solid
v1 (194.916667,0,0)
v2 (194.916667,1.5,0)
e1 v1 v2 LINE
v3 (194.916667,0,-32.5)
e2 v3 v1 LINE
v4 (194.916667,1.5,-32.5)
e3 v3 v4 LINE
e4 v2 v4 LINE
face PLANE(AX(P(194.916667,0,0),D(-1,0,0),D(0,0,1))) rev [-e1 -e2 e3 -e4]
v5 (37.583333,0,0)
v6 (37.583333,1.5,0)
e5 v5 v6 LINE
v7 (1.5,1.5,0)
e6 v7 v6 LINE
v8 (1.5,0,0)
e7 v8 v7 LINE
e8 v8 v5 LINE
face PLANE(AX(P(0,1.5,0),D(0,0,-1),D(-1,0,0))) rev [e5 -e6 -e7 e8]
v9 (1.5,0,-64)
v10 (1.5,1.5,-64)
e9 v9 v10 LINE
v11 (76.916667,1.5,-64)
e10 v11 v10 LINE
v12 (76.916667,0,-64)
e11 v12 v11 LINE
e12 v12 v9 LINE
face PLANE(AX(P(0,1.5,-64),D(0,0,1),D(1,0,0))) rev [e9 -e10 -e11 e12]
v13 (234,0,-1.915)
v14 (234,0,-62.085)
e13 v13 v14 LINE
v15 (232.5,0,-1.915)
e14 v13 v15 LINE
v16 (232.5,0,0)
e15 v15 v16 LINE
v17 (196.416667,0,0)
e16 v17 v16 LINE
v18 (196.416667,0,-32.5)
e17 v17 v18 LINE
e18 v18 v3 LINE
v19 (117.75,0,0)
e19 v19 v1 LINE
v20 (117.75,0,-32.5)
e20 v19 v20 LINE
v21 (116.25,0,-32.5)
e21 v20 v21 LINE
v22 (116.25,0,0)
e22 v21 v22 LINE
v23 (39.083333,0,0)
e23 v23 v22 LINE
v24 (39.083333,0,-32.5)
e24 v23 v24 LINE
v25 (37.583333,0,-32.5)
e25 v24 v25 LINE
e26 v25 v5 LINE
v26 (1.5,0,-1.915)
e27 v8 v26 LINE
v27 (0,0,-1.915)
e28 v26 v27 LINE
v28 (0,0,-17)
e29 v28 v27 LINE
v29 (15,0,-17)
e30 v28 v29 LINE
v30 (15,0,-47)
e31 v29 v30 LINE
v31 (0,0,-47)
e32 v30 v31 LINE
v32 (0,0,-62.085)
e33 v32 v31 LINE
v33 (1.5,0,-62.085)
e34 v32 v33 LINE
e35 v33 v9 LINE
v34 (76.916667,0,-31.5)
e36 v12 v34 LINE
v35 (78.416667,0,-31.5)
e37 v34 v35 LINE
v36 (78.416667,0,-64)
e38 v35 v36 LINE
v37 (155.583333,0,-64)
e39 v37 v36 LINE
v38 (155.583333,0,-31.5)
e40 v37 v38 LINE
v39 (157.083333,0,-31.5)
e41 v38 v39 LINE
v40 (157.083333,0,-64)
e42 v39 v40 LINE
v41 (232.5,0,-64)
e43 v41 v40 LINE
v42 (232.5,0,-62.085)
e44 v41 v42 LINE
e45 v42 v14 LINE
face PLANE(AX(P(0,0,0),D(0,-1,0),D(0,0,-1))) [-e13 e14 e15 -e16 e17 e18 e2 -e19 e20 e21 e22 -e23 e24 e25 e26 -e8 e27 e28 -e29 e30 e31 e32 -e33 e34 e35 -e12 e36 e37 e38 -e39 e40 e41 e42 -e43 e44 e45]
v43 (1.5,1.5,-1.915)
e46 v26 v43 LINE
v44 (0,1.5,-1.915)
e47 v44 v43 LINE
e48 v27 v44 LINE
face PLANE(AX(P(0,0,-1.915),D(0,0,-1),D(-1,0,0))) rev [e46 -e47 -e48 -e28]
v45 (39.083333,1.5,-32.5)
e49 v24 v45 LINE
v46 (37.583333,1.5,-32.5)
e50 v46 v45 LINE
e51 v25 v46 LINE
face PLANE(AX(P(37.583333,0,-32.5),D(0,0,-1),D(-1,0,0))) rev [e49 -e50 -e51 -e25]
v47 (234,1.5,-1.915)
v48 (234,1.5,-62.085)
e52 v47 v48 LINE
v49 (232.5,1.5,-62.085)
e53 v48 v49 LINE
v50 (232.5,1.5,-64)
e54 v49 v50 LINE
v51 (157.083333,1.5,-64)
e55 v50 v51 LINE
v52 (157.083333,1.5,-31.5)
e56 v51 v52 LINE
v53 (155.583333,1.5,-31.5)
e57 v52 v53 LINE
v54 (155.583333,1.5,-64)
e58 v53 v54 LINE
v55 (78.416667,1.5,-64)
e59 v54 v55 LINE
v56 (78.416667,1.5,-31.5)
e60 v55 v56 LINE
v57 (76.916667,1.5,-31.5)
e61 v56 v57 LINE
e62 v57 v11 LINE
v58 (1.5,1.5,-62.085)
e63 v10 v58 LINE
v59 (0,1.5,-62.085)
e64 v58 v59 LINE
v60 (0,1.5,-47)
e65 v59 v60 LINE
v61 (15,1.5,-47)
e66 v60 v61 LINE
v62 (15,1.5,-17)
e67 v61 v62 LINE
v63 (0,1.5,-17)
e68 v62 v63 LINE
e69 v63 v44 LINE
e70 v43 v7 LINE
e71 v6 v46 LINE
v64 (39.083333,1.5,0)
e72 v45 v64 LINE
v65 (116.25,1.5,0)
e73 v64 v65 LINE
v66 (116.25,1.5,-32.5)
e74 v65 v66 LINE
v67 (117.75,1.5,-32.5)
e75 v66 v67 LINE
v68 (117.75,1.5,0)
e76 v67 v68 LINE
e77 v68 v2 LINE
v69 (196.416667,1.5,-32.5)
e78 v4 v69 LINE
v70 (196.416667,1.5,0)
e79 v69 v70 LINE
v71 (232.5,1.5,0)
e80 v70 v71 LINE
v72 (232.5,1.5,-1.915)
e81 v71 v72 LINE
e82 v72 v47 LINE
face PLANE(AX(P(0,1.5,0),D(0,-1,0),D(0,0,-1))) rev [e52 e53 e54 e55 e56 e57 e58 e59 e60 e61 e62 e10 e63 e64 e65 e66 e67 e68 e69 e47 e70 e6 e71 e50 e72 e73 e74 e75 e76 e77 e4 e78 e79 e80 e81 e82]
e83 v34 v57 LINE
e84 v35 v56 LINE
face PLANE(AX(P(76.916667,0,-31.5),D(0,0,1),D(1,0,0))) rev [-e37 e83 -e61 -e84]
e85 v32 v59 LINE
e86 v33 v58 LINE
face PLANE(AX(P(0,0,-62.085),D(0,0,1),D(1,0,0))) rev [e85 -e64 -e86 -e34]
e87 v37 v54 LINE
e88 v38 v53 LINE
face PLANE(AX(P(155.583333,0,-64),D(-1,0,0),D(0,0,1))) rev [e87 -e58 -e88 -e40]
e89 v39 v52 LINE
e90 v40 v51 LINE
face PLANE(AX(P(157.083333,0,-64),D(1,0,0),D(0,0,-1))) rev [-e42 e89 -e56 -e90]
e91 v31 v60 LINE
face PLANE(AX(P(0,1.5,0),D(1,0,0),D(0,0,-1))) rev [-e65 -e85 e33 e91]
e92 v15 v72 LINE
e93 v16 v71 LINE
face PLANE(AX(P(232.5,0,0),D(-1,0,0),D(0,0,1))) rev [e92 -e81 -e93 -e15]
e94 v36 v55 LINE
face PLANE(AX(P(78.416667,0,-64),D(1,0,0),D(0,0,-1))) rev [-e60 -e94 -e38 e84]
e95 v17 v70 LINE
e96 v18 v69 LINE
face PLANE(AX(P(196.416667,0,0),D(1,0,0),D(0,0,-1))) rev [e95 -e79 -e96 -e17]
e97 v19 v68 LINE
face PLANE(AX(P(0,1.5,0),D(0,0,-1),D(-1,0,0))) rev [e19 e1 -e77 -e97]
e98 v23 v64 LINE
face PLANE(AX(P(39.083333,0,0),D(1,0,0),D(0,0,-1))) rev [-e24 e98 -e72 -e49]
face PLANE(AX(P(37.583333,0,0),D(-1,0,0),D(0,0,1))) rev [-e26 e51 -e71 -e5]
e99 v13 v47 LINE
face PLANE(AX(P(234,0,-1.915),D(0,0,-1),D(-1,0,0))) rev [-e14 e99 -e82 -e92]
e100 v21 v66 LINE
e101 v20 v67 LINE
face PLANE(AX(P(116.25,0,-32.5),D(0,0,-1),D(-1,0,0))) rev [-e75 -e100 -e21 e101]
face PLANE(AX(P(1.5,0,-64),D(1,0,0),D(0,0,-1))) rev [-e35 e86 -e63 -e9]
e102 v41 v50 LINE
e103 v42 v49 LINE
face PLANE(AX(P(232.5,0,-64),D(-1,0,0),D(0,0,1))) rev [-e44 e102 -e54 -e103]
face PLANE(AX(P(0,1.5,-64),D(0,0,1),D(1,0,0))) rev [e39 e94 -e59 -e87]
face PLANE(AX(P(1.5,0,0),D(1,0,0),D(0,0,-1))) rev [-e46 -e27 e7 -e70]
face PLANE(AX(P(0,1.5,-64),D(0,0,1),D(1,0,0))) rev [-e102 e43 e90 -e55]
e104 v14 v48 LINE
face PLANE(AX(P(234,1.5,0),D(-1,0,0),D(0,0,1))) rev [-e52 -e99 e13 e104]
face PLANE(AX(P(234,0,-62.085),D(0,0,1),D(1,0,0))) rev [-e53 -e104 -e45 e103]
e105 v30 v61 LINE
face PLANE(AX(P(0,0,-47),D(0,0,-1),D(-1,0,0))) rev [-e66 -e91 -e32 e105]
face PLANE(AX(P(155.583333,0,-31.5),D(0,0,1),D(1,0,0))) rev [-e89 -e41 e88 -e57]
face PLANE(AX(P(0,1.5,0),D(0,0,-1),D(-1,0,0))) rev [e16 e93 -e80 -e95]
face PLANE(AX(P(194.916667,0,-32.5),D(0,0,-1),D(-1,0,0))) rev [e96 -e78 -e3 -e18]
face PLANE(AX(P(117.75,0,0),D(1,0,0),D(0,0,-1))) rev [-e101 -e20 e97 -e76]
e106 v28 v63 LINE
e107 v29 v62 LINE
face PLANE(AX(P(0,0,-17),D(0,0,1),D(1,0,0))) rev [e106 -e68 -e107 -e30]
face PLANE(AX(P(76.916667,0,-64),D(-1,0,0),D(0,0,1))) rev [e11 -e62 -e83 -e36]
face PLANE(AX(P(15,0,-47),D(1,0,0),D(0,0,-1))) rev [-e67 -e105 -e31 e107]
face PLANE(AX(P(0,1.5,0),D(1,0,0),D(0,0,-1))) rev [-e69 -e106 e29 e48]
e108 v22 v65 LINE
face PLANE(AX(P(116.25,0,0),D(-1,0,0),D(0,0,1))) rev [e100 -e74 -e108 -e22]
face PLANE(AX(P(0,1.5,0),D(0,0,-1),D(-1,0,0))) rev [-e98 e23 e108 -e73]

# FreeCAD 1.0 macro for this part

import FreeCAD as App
import Part
import Sketcher

V = App.Vector
Q = App.Units.Quantity

doc = App.newDocument("Part")
body = doc.addObject("PartDesign::Body", "Body")

# Sketch on XZ plane
sketch1 = body.newObject("Sketcher::SketchObject", "Sketch")
sketch1.AttachmentSupport = (doc.getObject("XZ_Plane"), [""])
sketch1.MapMode = "FlatFace"
sketch1.addGeometry([
    Part.LineSegment(V(0, -64, 0), V(0, 0, 0)),
    Part.LineSegment(V(0, 0, 0), V(234, 0, 0)),
    Part.LineSegment(V(234, 0, 0), V(234, -64, 0)),
    Part.LineSegment(V(234, -64, 0), V(0, -64, 0)),
], False)
sketch1.addConstraint([
    Sketcher.Constraint("Coincident", 0, 2, 1, 1),
    Sketcher.Constraint("Coincident", 1, 2, 2, 1),
    Sketcher.Constraint("Coincident", 2, 2, 3, 1),
    Sketcher.Constraint("Coincident", 3, 2, 0, 1),
    Sketcher.Constraint("Vertical", 0),
    Sketcher.Constraint("Horizontal", 1),
    Sketcher.Constraint("Vertical", 2),
    Sketcher.Constraint("Horizontal", 3),
    Sketcher.Constraint("Coincident", 0, 2, -1, 1),
    Sketcher.Constraint("DistanceX", 1, 1, 1, 2, Q("234 mm")),
    Sketcher.Constraint("DistanceY", 0, 1, 0, 2, Q("64 mm")),
])
pad1 = body.newObject("PartDesign::Pad", "Pad")
pad1.Profile = sketch1
pad1.Length = 1.5
pad1.Reversed = True

# Sketch on XZ plane
sketch2 = body.newObject("Sketcher::SketchObject", "Sketch001")
sketch2.AttachmentSupport = (doc.getObject("XZ_Plane"), [""])
sketch2.MapMode = "FlatFace"
sketch2.AttachmentOffset = App.Placement(V(0, 0, -1.5), App.Rotation())
sketch2.addGeometry([
    Part.LineSegment(V(37.6, -32.5, 0), V(37.6, 0, 0)),  # 0
    Part.LineSegment(V(37.6, 0, 0), V(39.1, 0, 0)),  # 1
    Part.LineSegment(V(39.1, 0, 0), V(39.1, -32.5, 0)),  # 2
    Part.LineSegment(V(39.1, -32.5, 0), V(37.6, -32.5, 0)),  # 3
    Part.LineSegment(V(76.9, -64, 0), V(76.9, -31.5, 0)),  # 4
    Part.LineSegment(V(76.9, -31.5, 0), V(78.4, -31.5, 0)),  # 5
    Part.LineSegment(V(78.4, -31.5, 0), V(78.4, -64, 0)),  # 6
    Part.LineSegment(V(78.4, -64, 0), V(76.9, -64, 0)),  # 7
    Part.LineSegment(V(116.2, -32.5, 0), V(116.2, 0, 0)),  # 8
    Part.LineSegment(V(116.2, 0, 0), V(117.8, 0, 0)),  # 9
    Part.LineSegment(V(117.8, 0, 0), V(117.8, -32.5, 0)),  # 10
    Part.LineSegment(V(117.8, -32.5, 0), V(116.2, -32.5, 0)),  # 11
    Part.LineSegment(V(194.9, -32.5, 0), V(194.9, 0, 0)),  # 12
    Part.LineSegment(V(194.9, 0, 0), V(196.4, 0, 0)),  # 13
    Part.LineSegment(V(196.4, 0, 0), V(196.4, -32.5, 0)),  # 14
    Part.LineSegment(V(196.4, -32.5, 0), V(194.9, -32.5, 0)),  # 15
    Part.LineSegment(V(155.6, -64, 0), V(155.6, -31.5, 0)),  # 16
    Part.LineSegment(V(155.6, -31.5, 0), V(157.1, -31.5, 0)),  # 17
    Part.LineSegment(V(157.1, -31.5, 0), V(157.1, -64, 0)),  # 18
    Part.LineSegment(V(157.1, -64, 0), V(155.6, -64, 0)),  # 19
    Part.LineSegment(V(0, -1.9, 0), V(0, 0, 0)),  # 20
    Part.LineSegment(V(0, 0, 0), V(1.5, 0, 0)),  # 21
    Part.LineSegment(V(1.5, 0, 0), V(1.5, -1.9, 0)),  # 22
    Part.LineSegment(V(1.5, -1.9, 0), V(0, -1.9, 0)),  # 23
    Part.LineSegment(V(0, -64, 0), V(0, -62.1, 0)),  # 24
    Part.LineSegment(V(0, -62.1, 0), V(1.5, -62.1, 0)),  # 25
    Part.LineSegment(V(1.5, -62.1, 0), V(1.5, -64, 0)),  # 26
    Part.LineSegment(V(1.5, -64, 0), V(0, -64, 0)),  # 27
    Part.LineSegment(V(232.5, -64, 0), V(232.5, -62.1, 0)),  # 28
    Part.LineSegment(V(232.5, -62.1, 0), V(234, -62.1, 0)),  # 29
    Part.LineSegment(V(234, -62.1, 0), V(234, -64, 0)),  # 30
    Part.LineSegment(V(234, -64, 0), V(232.5, -64, 0)),  # 31
    Part.LineSegment(V(232.5, -1.9, 0), V(232.5, 0, 0)),  # 32
    Part.LineSegment(V(232.5, 0, 0), V(234, 0, 0)),  # 33
    Part.LineSegment(V(234, 0, 0), V(234, -1.9, 0)),  # 34
    Part.LineSegment(V(234, -1.9, 0), V(232.5, -1.9, 0)),  # 35
    Part.LineSegment(V(0, -47, 0), V(0, -17, 0)),  # 36
    Part.LineSegment(V(0, -17, 0), V(15, -17, 0)),  # 37
    Part.LineSegment(V(15, -17, 0), V(15, -47, 0)),  # 38
    Part.LineSegment(V(15, -47, 0), V(0, -47, 0)),  # 39
], False)
sketch2.addConstraint([
    Sketcher.Constraint("Coincident", 0, 2, 1, 1),
    Sketcher.Constraint("Coincident", 1, 2, 2, 1),
    Sketcher.Constraint("Coincident", 2, 2, 3, 1),
    Sketcher.Constraint("Coincident", 3, 2, 0, 1),
    Sketcher.Constraint("Coincident", 4, 2, 5, 1),
    Sketcher.Constraint("Coincident", 5, 2, 6, 1),
    Sketcher.Constraint("Coincident", 6, 2, 7, 1),
    Sketcher.Constraint("Coincident", 7, 2, 4, 1),
    Sketcher.Constraint("Coincident", 8, 2, 9, 1),
    Sketcher.Constraint("Coincident", 9, 2, 10, 1),
    Sketcher.Constraint("Coincident", 10, 2, 11, 1),
    Sketcher.Constraint("Coincident", 11, 2, 8, 1),
    Sketcher.Constraint("Coincident", 12, 2, 13, 1),
    Sketcher.Constraint("Coincident", 13, 2, 14, 1),
    Sketcher.Constraint("Coincident", 14, 2, 15, 1),
    Sketcher.Constraint("Coincident", 15, 2, 12, 1),
    Sketcher.Constraint("Coincident", 16, 2, 17, 1),
    Sketcher.Constraint("Coincident", 17, 2, 18, 1),
    Sketcher.Constraint("Coincident", 18, 2, 19, 1),
    Sketcher.Constraint("Coincident", 19, 2, 16, 1),
    Sketcher.Constraint("Coincident", 20, 2, 21, 1),
    Sketcher.Constraint("Coincident", 21, 2, 22, 1),
    Sketcher.Constraint("Coincident", 22, 2, 23, 1),
    Sketcher.Constraint("Coincident", 23, 2, 20, 1),
    Sketcher.Constraint("Coincident", 24, 2, 25, 1),
    Sketcher.Constraint("Coincident", 25, 2, 26, 1),
    Sketcher.Constraint("Coincident", 26, 2, 27, 1),
    Sketcher.Constraint("Coincident", 27, 2, 24, 1),
    Sketcher.Constraint("Coincident", 28, 2, 29, 1),
    Sketcher.Constraint("Coincident", 29, 2, 30, 1),
    Sketcher.Constraint("Coincident", 30, 2, 31, 1),
    Sketcher.Constraint("Coincident", 31, 2, 28, 1),
    Sketcher.Constraint("Coincident", 32, 2, 33, 1),
    Sketcher.Constraint("Coincident", 33, 2, 34, 1),
    Sketcher.Constraint("Coincident", 34, 2, 35, 1),
    Sketcher.Constraint("Coincident", 35, 2, 32, 1),
    Sketcher.Constraint("Coincident", 36, 2, 37, 1),
    Sketcher.Constraint("Coincident", 37, 2, 38, 1),
    Sketcher.Constraint("Coincident", 38, 2, 39, 1),
    Sketcher.Constraint("Coincident", 39, 2, 36, 1),
    Sketcher.Constraint("Vertical", 0),
    Sketcher.Constraint("Horizontal", 1),
    Sketcher.Constraint("Vertical", 2),
    Sketcher.Constraint("Horizontal", 3),
    Sketcher.Constraint("Vertical", 4),
    Sketcher.Constraint("Horizontal", 5),
    Sketcher.Constraint("Vertical", 6),
    Sketcher.Constraint("Horizontal", 7),
    Sketcher.Constraint("Vertical", 8),
    Sketcher.Constraint("Horizontal", 9),
    Sketcher.Constraint("Vertical", 10),
    Sketcher.Constraint("Horizontal", 11),
    Sketcher.Constraint("Vertical", 12),
    Sketcher.Constraint("Horizontal", 13),
    Sketcher.Constraint("Vertical", 14),
    Sketcher.Constraint("Horizontal", 15),
    Sketcher.Constraint("Vertical", 16),
    Sketcher.Constraint("Horizontal", 17),
    Sketcher.Constraint("Vertical", 18),
    Sketcher.Constraint("Horizontal", 19),
    Sketcher.Constraint("Vertical", 20),
    Sketcher.Constraint("Horizontal", 21),
    Sketcher.Constraint("Vertical", 22),
    Sketcher.Constraint("Horizontal", 23),
    Sketcher.Constraint("Vertical", 24),
    Sketcher.Constraint("Horizontal", 25),
    Sketcher.Constraint("Vertical", 26),
    Sketcher.Constraint("Horizontal", 27),
    Sketcher.Constraint("Vertical", 28),
    Sketcher.Constraint("Horizontal", 29),
    Sketcher.Constraint("Vertical", 30),
    Sketcher.Constraint("Horizontal", 31),
    Sketcher.Constraint("Vertical", 32),
    Sketcher.Constraint("Horizontal", 33),
    Sketcher.Constraint("Vertical", 34),
    Sketcher.Constraint("Horizontal", 35),
    Sketcher.Constraint("Vertical", 36),
    Sketcher.Constraint("Horizontal", 37),
    Sketcher.Constraint("Vertical", 38),
    Sketcher.Constraint("Horizontal", 39),
    Sketcher.Constraint("Coincident", 20, 2, -1, 1),
    Sketcher.Constraint("PointOnObject", 0, 2, -1),
    Sketcher.Constraint("PointOnObject", 8, 2, -1),
    Sketcher.Constraint("PointOnObject", 12, 2, -1),
    Sketcher.Constraint("PointOnObject", 24, 2, -2),
    Sketcher.Constraint("PointOnObject", 32, 2, -1),
    Sketcher.Constraint("PointOnObject", 36, 2, -2),
    Sketcher.Constraint("Horizontal", 3, 2, 10, 2),
    Sketcher.Constraint("Horizontal", 11, 2, 14, 2),
    Sketcher.Constraint("Horizontal", 5, 2, 16, 2),
    Sketcher.Constraint("Horizontal", 7, 2, 18, 2),
    Sketcher.Constraint("Horizontal", 19, 2, 26, 2),
    Sketcher.Constraint("Horizontal", 25, 2, 28, 2),
    Sketcher.Constraint("Horizontal", 27, 2, 30, 2),
    Sketcher.Constraint("Horizontal", 23, 2, 34, 2),
    Sketcher.Constraint("Vertical", 22, 2, 25, 2),
    Sketcher.Constraint("Vertical", 31, 2, 32, 2),
    Sketcher.Constraint("Vertical", 30, 2, 33, 2),
    Sketcher.Constraint("Equal", 3, 5),
    Sketcher.Constraint("Equal", 7, 9),
    Sketcher.Constraint("Equal", 11, 13),
    Sketcher.Constraint("Equal", 15, 17),
    Sketcher.Constraint("Equal", 19, 21),
    Sketcher.Constraint("Equal", 27, 29),
    Sketcher.Constraint("Equal", 2, 4),
    Sketcher.Constraint("Equal", 22, 24),
    Sketcher.Constraint("DistanceX", 37, 1, 37, 2, Q("15 mm")),
    Sketcher.Constraint("DistanceY", 36, 1, 36, 2, Q("30 mm")),
    Sketcher.Constraint("DistanceX", 1, 1, 1, 2, Q("1.5 mm")),
    Sketcher.Constraint("DistanceY", 0, 1, 0, 2, Q("32.5 mm")),
    Sketcher.Constraint("DistanceY", 6, 2, -1, 1, Q("64 mm")),
    Sketcher.Constraint("DistanceX", -1, 1, 29, 2, Q("234 mm")),
    Sketcher.Constraint("DistanceY", 36, 2, -1, 1, Q("17 mm")),
    Sketcher.Constraint("DistanceX", 5, 2, 12, 2, Q("116.5 mm")),
    Sketcher.Constraint("DistanceY", 20, 1, 20, 2, Q("1.915 mm")),
    Sketcher.Constraint("DistanceX", -1, 1, 8, 2, Q("116.25 mm")),
    Sketcher.Constraint("DistanceX", -1, 1, 0, 2, Q("37.583333 mm")),
    Sketcher.Constraint("DistanceX", -1, 1, 4, 2, Q("76.916667 mm")),
    Sketcher.Constraint("DistanceX", -1, 1, 16, 2, Q("155.583333 mm")),
])
pocket1 = body.newObject("PartDesign::Pocket", "Pocket")
pocket1.Profile = sketch2
pocket1.Type = "ThroughAll"
pocket1.Midplane = True

doc.recompute()
